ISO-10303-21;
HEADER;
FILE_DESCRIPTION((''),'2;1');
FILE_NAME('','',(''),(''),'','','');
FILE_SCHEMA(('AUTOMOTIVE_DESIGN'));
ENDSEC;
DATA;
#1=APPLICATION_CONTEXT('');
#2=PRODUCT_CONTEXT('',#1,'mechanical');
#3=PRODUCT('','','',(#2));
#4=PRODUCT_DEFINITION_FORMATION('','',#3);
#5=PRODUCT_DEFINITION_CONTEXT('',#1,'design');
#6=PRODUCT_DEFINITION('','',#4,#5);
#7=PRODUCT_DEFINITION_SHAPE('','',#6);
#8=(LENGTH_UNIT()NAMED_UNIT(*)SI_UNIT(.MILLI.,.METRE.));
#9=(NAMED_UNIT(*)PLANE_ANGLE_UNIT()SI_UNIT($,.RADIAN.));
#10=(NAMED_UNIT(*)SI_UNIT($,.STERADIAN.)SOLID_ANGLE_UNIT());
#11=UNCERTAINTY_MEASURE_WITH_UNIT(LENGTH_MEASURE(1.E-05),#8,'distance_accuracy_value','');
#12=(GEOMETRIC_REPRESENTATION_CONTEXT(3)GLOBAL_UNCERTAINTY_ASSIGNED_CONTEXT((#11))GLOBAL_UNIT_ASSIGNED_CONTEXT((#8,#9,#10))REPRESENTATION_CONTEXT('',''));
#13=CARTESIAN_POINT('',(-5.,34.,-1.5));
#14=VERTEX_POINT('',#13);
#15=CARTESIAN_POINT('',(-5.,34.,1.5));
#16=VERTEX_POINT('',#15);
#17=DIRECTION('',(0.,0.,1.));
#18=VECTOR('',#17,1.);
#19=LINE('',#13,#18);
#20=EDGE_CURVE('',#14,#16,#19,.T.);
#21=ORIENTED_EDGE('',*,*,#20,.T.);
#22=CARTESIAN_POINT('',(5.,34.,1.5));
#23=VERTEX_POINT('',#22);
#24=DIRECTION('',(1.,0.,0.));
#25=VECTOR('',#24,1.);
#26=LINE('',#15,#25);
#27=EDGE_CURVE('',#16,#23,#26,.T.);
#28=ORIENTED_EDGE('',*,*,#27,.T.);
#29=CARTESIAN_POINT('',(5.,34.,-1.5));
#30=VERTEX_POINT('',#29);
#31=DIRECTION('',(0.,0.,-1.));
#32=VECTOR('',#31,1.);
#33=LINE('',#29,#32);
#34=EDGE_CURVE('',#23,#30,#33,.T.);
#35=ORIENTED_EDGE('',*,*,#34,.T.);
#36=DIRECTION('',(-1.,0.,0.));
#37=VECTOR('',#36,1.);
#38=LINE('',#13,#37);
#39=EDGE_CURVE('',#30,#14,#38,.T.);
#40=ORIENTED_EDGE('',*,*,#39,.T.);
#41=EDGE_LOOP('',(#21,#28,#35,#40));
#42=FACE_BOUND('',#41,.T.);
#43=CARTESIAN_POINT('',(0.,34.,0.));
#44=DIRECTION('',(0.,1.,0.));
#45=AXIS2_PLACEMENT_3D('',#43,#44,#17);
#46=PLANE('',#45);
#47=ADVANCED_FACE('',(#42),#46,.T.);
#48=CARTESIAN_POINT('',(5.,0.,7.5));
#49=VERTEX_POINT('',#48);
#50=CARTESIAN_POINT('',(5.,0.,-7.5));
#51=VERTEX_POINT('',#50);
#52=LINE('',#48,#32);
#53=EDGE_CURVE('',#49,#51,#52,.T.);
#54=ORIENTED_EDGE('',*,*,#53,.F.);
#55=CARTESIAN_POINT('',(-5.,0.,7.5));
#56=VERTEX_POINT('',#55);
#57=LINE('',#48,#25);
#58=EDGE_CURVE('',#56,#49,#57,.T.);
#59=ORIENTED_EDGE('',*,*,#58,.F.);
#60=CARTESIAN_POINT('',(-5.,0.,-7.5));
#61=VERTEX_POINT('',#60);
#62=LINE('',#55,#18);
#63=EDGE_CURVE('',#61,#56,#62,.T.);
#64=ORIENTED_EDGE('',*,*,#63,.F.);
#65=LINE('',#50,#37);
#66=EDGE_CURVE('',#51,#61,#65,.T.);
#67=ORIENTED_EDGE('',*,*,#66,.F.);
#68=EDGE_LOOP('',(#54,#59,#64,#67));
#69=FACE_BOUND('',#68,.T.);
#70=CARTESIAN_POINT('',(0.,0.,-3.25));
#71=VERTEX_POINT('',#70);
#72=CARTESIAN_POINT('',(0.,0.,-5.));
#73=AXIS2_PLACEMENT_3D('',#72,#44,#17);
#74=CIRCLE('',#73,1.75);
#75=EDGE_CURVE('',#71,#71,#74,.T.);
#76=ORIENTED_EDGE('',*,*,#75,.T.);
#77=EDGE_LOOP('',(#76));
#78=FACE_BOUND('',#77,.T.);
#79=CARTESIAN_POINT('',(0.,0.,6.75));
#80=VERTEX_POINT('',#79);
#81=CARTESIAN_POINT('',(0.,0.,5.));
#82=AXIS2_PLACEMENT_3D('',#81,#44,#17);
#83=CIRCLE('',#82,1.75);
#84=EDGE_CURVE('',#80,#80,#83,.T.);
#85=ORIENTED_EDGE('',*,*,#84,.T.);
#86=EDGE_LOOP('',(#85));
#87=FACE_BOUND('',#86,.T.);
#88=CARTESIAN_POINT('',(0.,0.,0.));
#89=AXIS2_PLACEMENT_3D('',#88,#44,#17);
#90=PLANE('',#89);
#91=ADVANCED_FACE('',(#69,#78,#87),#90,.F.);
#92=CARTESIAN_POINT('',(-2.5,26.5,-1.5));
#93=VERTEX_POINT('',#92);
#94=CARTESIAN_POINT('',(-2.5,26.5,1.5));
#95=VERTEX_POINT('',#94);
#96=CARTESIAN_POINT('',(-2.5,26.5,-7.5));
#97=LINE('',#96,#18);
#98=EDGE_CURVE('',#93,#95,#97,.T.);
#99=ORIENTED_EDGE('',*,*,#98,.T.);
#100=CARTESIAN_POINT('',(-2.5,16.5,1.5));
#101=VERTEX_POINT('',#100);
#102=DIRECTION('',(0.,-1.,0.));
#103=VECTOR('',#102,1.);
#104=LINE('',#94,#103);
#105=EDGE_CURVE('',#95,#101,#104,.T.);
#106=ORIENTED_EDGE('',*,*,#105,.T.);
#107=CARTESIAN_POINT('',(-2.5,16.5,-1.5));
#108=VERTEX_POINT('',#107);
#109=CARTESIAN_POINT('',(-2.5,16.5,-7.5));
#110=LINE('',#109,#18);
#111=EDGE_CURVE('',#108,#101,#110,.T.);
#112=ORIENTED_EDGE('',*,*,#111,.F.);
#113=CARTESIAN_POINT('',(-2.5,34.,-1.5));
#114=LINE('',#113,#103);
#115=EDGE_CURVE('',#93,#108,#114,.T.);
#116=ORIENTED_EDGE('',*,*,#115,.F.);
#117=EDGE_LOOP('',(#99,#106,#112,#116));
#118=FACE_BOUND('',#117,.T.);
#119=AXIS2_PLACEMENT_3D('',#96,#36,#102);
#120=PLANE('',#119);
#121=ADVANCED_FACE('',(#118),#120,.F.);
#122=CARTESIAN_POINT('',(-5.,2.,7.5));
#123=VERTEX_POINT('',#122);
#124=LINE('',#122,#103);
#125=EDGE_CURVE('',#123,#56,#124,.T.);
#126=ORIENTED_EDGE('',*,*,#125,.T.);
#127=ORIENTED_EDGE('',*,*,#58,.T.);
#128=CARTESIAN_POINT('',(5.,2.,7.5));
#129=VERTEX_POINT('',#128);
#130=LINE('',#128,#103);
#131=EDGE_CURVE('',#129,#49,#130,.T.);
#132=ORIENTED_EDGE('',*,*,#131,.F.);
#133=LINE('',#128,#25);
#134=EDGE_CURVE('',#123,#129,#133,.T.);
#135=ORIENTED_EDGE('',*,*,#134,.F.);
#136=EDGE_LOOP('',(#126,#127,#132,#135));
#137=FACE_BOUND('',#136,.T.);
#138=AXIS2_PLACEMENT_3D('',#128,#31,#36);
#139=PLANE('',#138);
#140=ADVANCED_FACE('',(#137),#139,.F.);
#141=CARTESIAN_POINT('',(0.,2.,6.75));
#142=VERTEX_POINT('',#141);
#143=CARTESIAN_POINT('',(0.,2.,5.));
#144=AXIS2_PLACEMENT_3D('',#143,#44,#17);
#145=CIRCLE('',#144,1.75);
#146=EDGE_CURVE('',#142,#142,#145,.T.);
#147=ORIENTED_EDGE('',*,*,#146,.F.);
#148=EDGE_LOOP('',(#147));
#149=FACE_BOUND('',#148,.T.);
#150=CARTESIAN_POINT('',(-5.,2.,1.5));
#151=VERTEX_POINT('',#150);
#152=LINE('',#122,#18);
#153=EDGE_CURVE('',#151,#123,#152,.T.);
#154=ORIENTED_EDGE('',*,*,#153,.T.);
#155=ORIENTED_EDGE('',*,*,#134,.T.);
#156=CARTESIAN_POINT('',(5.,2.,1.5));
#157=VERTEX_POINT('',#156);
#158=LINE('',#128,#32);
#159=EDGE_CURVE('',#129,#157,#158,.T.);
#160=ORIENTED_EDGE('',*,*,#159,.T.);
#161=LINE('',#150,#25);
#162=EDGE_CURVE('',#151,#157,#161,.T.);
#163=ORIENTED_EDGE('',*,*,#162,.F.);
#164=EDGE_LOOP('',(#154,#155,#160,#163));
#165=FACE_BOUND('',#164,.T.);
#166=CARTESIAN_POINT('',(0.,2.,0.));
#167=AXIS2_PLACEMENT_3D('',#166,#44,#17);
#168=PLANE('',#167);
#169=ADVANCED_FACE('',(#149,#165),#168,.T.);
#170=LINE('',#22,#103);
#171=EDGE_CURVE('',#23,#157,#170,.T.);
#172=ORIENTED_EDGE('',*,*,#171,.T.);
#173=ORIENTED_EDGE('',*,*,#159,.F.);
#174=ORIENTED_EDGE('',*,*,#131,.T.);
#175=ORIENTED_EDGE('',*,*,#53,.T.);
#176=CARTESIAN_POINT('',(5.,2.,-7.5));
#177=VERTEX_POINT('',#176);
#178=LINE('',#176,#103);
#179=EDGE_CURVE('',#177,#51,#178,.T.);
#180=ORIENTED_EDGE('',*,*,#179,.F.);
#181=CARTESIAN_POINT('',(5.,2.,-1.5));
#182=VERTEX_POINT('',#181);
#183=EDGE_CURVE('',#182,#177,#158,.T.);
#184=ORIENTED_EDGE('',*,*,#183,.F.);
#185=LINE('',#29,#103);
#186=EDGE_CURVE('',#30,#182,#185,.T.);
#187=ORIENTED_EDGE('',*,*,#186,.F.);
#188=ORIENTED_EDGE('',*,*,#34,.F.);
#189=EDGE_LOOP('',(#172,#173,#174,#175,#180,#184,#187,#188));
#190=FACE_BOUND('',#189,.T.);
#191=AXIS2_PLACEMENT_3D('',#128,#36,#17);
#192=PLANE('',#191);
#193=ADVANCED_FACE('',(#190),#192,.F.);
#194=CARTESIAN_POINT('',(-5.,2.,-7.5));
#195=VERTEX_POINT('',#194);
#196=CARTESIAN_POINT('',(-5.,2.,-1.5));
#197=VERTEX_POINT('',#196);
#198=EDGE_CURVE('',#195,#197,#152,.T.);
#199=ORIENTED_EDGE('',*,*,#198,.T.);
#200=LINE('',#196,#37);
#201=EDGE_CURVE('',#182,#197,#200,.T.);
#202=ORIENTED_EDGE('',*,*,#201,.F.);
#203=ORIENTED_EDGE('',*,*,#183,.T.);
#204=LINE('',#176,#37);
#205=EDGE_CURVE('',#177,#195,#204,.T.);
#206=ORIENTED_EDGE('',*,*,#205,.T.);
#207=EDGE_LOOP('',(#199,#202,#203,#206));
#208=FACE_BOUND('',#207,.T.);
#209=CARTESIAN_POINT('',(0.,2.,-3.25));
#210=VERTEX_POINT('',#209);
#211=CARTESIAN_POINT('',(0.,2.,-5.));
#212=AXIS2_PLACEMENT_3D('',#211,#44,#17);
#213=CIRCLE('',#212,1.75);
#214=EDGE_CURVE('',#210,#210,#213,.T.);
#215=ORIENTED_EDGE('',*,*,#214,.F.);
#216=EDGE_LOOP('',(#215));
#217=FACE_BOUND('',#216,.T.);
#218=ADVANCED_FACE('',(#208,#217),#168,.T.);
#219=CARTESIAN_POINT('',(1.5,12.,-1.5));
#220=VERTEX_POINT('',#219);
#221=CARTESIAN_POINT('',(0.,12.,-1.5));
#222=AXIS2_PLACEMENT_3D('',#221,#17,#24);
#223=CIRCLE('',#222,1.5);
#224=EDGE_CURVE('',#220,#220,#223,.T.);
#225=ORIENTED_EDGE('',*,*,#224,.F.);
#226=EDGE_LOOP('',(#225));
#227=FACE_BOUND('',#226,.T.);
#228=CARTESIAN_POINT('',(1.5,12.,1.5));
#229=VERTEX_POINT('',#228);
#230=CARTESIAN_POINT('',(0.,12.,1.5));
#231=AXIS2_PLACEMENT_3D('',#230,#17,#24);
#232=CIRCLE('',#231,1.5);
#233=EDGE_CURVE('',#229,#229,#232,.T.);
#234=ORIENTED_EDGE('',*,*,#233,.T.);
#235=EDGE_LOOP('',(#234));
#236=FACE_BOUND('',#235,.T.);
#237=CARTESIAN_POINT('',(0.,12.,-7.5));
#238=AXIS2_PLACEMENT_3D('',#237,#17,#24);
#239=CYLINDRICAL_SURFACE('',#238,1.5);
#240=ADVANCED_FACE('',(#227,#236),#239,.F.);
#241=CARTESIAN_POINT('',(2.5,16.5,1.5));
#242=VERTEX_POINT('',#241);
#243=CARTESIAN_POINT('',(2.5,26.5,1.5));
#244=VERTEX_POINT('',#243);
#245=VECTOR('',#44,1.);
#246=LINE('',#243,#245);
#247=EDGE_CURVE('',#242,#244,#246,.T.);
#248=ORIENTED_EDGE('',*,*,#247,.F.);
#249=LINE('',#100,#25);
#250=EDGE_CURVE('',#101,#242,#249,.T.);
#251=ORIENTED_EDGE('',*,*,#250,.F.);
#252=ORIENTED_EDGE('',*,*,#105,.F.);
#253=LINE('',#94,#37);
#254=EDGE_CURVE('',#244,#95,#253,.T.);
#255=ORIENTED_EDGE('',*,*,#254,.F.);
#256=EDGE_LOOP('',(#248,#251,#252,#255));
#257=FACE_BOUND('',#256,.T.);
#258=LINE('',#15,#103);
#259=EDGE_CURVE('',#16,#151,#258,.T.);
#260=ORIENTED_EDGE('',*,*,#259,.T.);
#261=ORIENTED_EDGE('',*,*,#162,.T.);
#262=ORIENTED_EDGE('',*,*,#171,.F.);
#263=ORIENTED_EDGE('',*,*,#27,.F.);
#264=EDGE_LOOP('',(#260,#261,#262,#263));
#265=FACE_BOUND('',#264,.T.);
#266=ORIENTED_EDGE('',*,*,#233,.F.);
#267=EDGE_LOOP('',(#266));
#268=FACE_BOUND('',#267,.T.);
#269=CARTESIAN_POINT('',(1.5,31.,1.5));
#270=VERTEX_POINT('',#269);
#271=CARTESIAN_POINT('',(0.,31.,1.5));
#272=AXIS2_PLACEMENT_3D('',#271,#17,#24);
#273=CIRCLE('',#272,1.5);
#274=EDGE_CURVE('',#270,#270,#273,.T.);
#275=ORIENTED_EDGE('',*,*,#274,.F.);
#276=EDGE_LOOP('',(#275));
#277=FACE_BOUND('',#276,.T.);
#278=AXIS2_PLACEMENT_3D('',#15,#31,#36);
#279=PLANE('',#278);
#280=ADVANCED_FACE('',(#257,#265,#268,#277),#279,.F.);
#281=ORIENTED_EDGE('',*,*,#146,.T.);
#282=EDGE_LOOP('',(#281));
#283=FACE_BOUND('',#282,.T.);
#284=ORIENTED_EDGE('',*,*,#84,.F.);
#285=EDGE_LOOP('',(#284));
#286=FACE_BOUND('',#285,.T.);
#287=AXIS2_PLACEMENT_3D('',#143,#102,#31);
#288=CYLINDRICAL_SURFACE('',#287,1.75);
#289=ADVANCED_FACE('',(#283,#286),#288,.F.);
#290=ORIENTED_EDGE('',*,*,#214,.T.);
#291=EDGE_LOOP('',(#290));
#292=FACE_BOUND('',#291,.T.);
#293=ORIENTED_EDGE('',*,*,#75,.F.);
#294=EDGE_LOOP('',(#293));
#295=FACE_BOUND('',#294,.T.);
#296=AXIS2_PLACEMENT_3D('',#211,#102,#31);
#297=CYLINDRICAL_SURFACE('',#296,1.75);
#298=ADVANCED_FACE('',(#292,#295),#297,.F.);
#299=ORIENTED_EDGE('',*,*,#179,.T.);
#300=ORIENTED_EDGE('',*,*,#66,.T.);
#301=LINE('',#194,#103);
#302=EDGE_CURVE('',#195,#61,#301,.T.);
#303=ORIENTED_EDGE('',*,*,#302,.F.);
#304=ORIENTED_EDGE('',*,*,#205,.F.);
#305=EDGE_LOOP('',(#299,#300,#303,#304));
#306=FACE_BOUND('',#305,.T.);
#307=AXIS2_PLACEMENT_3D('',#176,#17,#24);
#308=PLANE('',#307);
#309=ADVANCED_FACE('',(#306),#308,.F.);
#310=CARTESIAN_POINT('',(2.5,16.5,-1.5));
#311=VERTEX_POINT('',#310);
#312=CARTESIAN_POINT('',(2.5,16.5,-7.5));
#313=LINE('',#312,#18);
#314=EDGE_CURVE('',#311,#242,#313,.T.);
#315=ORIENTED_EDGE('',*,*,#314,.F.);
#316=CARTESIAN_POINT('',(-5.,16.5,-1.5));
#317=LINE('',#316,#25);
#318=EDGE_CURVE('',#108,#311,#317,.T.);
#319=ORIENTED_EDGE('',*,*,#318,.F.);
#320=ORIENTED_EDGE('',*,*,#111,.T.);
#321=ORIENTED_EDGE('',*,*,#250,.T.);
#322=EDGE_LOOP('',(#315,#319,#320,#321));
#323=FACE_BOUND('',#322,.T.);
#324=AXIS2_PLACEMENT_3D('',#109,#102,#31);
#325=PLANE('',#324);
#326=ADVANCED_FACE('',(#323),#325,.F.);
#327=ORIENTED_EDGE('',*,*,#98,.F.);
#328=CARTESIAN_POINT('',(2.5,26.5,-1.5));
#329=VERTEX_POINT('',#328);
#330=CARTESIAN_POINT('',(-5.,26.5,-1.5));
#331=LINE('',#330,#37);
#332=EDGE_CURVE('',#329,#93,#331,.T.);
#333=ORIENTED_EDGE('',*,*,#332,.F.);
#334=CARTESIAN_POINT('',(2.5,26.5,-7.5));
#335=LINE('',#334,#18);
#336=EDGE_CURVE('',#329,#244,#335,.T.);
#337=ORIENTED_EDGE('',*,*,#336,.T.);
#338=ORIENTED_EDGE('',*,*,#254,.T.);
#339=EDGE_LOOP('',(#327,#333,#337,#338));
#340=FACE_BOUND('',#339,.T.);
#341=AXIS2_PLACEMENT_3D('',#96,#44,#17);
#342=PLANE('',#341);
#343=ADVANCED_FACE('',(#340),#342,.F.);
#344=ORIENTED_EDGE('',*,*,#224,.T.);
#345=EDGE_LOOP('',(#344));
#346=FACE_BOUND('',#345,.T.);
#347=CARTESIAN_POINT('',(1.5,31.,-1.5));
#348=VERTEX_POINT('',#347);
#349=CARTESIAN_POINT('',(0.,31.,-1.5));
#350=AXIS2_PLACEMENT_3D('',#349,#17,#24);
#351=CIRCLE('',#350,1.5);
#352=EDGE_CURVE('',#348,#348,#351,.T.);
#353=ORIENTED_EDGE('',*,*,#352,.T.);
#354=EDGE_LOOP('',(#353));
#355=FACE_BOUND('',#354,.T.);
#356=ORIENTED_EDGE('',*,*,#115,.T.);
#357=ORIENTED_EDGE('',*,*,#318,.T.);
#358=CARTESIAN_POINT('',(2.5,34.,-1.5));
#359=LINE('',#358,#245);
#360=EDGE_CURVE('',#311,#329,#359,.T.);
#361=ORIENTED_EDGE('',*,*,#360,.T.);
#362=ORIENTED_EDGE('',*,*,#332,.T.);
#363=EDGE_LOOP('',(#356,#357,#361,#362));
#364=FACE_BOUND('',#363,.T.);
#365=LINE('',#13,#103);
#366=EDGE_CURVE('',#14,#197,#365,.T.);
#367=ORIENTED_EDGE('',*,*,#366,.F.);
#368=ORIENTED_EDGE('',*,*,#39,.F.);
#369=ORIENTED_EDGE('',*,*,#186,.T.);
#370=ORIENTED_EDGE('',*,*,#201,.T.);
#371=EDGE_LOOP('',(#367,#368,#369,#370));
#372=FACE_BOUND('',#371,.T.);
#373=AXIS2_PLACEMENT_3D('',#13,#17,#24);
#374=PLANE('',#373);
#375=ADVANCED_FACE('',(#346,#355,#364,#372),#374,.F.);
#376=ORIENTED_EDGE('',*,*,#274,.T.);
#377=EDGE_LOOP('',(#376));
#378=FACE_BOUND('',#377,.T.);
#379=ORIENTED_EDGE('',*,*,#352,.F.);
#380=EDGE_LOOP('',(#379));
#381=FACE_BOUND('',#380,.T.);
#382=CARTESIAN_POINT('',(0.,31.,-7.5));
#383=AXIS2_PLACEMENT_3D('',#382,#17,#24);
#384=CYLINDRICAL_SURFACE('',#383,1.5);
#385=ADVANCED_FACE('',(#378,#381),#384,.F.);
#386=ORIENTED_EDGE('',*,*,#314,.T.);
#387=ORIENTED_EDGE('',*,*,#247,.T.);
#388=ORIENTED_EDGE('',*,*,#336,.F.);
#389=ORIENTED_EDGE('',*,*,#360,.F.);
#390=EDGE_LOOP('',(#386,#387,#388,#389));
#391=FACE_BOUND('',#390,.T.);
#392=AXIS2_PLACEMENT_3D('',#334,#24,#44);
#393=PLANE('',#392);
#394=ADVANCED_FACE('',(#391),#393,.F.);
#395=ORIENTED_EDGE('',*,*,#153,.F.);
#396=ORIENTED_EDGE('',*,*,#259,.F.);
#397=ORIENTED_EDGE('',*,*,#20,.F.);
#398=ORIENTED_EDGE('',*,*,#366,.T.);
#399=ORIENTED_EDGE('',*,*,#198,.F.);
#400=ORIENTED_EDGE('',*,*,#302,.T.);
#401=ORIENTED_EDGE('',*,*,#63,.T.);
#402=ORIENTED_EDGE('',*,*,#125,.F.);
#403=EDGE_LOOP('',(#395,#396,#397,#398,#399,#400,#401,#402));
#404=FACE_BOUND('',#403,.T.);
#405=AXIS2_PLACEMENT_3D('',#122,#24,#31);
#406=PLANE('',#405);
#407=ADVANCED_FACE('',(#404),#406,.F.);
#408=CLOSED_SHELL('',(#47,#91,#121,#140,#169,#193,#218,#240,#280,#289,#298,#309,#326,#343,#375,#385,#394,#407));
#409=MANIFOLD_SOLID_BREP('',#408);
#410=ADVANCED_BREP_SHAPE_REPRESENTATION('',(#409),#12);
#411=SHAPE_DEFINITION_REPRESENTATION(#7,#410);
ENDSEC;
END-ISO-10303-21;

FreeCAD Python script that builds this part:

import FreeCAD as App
import Part
import Sketcher

doc = App.newDocument("Part")
body = doc.addObject("PartDesign::Body", "Body")

# Sketch on XZ plane
sketch1 = doc.addObject("Sketcher::SketchObject", "Sketch")
body.addObject(sketch1)
sketch1.AttachmentSupport = (doc.XZ_Plane, [""])
sketch1.MapMode = "FlatFace"
sketch1.addGeometry(Part.LineSegment(App.Vector(-5, -7.5, 0), App.Vector(-5, 7.5, 0)), False)
sketch1.addGeometry(Part.LineSegment(App.Vector(-5, 7.5, 0), App.Vector(5, 7.5, 0)), False)
sketch1.addGeometry(Part.LineSegment(App.Vector(5, 7.5, 0), App.Vector(5, -7.5, 0)), False)
sketch1.addGeometry(Part.LineSegment(App.Vector(5, -7.5, 0), App.Vector(-5, -7.5, 0)), False)
sketch1.addGeometry(Part.Circle(App.Vector(0, 5, 0), App.Vector(0, 0, 1), 1.8), False)
sketch1.addGeometry(Part.Circle(App.Vector(0, -5, 0), App.Vector(0, 0, 1), 1.8), False)
sketch1.addConstraint(Sketcher.Constraint("Coincident", 0, 2, 1, 1))
sketch1.addConstraint(Sketcher.Constraint("Coincident", 1, 2, 2, 1))
sketch1.addConstraint(Sketcher.Constraint("Coincident", 2, 2, 3, 1))
sketch1.addConstraint(Sketcher.Constraint("Coincident", 3, 2, 0, 1))
sketch1.addConstraint(Sketcher.Constraint("Vertical", 0))
sketch1.addConstraint(Sketcher.Constraint("Horizontal", 1))
sketch1.addConstraint(Sketcher.Constraint("Vertical", 2))
sketch1.addConstraint(Sketcher.Constraint("Horizontal", 3))
sketch1.addConstraint(Sketcher.Constraint("Equal", 4, 5))
sketch1.addConstraint(Sketcher.Constraint("Symmetric", 4, 3, 5, 3, -1, 1))
sketch1.addConstraint(Sketcher.Constraint("Symmetric", 0, 2, 2, 2, -1, 1))
sketch1.addConstraint(Sketcher.Constraint("PointOnObject", 4, 3, -2))
sketch1.addConstraint(Sketcher.Constraint("Diameter", 4, 3.5))
sketch1.addConstraint(Sketcher.Constraint("DistanceX", 1, 1, 1, 2, 10.0))
sketch1.addConstraint(Sketcher.Constraint("DistanceY", 0, 1, 0, 2, 15.0))
sketch1.addConstraint(Sketcher.Constraint("DistanceY", -1, 1, 4, 3, 5.0))
pad1 = doc.addObject("PartDesign::Pad", "Pad")
body.addObject(pad1)
pad1.Profile = sketch1
pad1.Length = 2
pad1.Reversed = True

# Sketch on XZ plane
sketch2 = doc.addObject("Sketcher::SketchObject", "Sketch001")
body.addObject(sketch2)
sketch2.AttachmentSupport = (doc.XZ_Plane, [""])
sketch2.MapMode = "FlatFace"
sketch2.AttachmentOffset = App.Placement(App.Vector(0, 0, -2), App.Rotation())
sketch2.addGeometry(Part.LineSegment(App.Vector(-5, -1.5, 0), App.Vector(-5, 1.5, 0)), False)
sketch2.addGeometry(Part.LineSegment(App.Vector(-5, 1.5, 0), App.Vector(5, 1.5, 0)), False)
sketch2.addGeometry(Part.LineSegment(App.Vector(5, 1.5, 0), App.Vector(5, -1.5, 0)), False)
sketch2.addGeometry(Part.LineSegment(App.Vector(5, -1.5, 0), App.Vector(-5, -1.5, 0)), False)
sketch2.addConstraint(Sketcher.Constraint("Coincident", 0, 2, 1, 1))
sketch2.addConstraint(Sketcher.Constraint("Coincident", 1, 2, 2, 1))
sketch2.addConstraint(Sketcher.Constraint("Coincident", 2, 2, 3, 1))
sketch2.addConstraint(Sketcher.Constraint("Coincident", 3, 2, 0, 1))
sketch2.addConstraint(Sketcher.Constraint("Vertical", 0))
sketch2.addConstraint(Sketcher.Constraint("Horizontal", 1))
sketch2.addConstraint(Sketcher.Constraint("Vertical", 2))
sketch2.addConstraint(Sketcher.Constraint("Horizontal", 3))
sketch2.addConstraint(Sketcher.Constraint("Symmetric", 0, 2, 2, 2, -1, 1))
sketch2.addConstraint(Sketcher.Constraint("DistanceX", 1, 1, 1, 2, 10.0))
sketch2.addConstraint(Sketcher.Constraint("DistanceY", 0, 1, 0, 2, 3.0))
pad2 = doc.addObject("PartDesign::Pad", "Pad001")
body.addObject(pad2)
pad2.Profile = sketch2
pad2.Length = 32
pad2.Reversed = True

# Sketch on XY plane
sketch3 = doc.addObject("Sketcher::SketchObject", "Sketch002")
body.addObject(sketch3)
sketch3.AttachmentSupport = (doc.XY_Plane, [""])
sketch3.MapMode = "FlatFace"
sketch3.AttachmentOffset = App.Placement(App.Vector(0, 0, 1.5), App.Rotation())
sketch3.addGeometry(Part.Circle(App.Vector(0, 31, 0), App.Vector(0, 0, 1), 1.5), False)
sketch3.addGeometry(Part.Circle(App.Vector(0, 12, 0), App.Vector(0, 0, 1), 1.5), False)
sketch3.addConstraint(Sketcher.Constraint("Equal", 0, 1))
sketch3.addConstraint(Sketcher.Constraint("PointOnObject", 0, 3, -2))
sketch3.addConstraint(Sketcher.Constraint("PointOnObject", 1, 3, -2))
sketch3.addConstraint(Sketcher.Constraint("Diameter", 0, 3.0))
sketch3.addConstraint(Sketcher.Constraint("DistanceY", -1, 1, 0, 3, 31.0))
sketch3.addConstraint(Sketcher.Constraint("DistanceY", -1, 1, 1, 3, 12.0))
pocket1 = doc.addObject("PartDesign::Pocket", "Pocket")
body.addObject(pocket1)
pocket1.Profile = sketch3
pocket1.Type = "ThroughAll"

# Sketch on XY plane
sketch4 = doc.addObject("Sketcher::SketchObject", "Sketch003")
body.addObject(sketch4)
sketch4.AttachmentSupport = (doc.XY_Plane, [""])
sketch4.MapMode = "FlatFace"
sketch4.AttachmentOffset = App.Placement(App.Vector(0, 0, 1.5), App.Rotation())
sketch4.addGeometry(Part.LineSegment(App.Vector(-2, 26, 0), App.Vector(-2, 16, 0)), False)
sketch4.addGeometry(Part.LineSegment(App.Vector(-2, 16, 0), App.Vector(2, 16, 0)), False)
sketch4.addGeometry(Part.LineSegment(App.Vector(2, 16, 0), App.Vector(2, 26, 0)), False)
sketch4.addGeometry(Part.LineSegment(App.Vector(2, 26, 0), App.Vector(-2, 26, 0)), False)
sketch4.addConstraint(Sketcher.Constraint("Coincident", 0, 2, 1, 1))
sketch4.addConstraint(Sketcher.Constraint("Coincident", 1, 2, 2, 1))
sketch4.addConstraint(Sketcher.Constraint("Coincident", 2, 2, 3, 1))
sketch4.addConstraint(Sketcher.Constraint("Coincident", 3, 2, 0, 1))
sketch4.addConstraint(Sketcher.Constraint("Vertical", 0))
sketch4.addConstraint(Sketcher.Constraint("Horizontal", 1))
sketch4.addConstraint(Sketcher.Constraint("Vertical", 2))
sketch4.addConstraint(Sketcher.Constraint("Horizontal", 3))
sketch4.addConstraint(Sketcher.Constraint("DistanceX", 1, 1, 1, 2, 5.0))
sketch4.addConstraint(Sketcher.Constraint("DistanceY", 0, 2, 0, 1, 10.0))
sketch4.addConstraint(Sketcher.Constraint("DistanceX", 0, 2, -1, 1, 2.5))
sketch4.addConstraint(Sketcher.Constraint("DistanceY", -1, 1, 0, 2, 16.5))
pocket2 = doc.addObject("PartDesign::Pocket", "Pocket001")
body.addObject(pocket2)
pocket2.Profile = sketch4
pocket2.Type = "ThroughAll"

doc.recompute()
